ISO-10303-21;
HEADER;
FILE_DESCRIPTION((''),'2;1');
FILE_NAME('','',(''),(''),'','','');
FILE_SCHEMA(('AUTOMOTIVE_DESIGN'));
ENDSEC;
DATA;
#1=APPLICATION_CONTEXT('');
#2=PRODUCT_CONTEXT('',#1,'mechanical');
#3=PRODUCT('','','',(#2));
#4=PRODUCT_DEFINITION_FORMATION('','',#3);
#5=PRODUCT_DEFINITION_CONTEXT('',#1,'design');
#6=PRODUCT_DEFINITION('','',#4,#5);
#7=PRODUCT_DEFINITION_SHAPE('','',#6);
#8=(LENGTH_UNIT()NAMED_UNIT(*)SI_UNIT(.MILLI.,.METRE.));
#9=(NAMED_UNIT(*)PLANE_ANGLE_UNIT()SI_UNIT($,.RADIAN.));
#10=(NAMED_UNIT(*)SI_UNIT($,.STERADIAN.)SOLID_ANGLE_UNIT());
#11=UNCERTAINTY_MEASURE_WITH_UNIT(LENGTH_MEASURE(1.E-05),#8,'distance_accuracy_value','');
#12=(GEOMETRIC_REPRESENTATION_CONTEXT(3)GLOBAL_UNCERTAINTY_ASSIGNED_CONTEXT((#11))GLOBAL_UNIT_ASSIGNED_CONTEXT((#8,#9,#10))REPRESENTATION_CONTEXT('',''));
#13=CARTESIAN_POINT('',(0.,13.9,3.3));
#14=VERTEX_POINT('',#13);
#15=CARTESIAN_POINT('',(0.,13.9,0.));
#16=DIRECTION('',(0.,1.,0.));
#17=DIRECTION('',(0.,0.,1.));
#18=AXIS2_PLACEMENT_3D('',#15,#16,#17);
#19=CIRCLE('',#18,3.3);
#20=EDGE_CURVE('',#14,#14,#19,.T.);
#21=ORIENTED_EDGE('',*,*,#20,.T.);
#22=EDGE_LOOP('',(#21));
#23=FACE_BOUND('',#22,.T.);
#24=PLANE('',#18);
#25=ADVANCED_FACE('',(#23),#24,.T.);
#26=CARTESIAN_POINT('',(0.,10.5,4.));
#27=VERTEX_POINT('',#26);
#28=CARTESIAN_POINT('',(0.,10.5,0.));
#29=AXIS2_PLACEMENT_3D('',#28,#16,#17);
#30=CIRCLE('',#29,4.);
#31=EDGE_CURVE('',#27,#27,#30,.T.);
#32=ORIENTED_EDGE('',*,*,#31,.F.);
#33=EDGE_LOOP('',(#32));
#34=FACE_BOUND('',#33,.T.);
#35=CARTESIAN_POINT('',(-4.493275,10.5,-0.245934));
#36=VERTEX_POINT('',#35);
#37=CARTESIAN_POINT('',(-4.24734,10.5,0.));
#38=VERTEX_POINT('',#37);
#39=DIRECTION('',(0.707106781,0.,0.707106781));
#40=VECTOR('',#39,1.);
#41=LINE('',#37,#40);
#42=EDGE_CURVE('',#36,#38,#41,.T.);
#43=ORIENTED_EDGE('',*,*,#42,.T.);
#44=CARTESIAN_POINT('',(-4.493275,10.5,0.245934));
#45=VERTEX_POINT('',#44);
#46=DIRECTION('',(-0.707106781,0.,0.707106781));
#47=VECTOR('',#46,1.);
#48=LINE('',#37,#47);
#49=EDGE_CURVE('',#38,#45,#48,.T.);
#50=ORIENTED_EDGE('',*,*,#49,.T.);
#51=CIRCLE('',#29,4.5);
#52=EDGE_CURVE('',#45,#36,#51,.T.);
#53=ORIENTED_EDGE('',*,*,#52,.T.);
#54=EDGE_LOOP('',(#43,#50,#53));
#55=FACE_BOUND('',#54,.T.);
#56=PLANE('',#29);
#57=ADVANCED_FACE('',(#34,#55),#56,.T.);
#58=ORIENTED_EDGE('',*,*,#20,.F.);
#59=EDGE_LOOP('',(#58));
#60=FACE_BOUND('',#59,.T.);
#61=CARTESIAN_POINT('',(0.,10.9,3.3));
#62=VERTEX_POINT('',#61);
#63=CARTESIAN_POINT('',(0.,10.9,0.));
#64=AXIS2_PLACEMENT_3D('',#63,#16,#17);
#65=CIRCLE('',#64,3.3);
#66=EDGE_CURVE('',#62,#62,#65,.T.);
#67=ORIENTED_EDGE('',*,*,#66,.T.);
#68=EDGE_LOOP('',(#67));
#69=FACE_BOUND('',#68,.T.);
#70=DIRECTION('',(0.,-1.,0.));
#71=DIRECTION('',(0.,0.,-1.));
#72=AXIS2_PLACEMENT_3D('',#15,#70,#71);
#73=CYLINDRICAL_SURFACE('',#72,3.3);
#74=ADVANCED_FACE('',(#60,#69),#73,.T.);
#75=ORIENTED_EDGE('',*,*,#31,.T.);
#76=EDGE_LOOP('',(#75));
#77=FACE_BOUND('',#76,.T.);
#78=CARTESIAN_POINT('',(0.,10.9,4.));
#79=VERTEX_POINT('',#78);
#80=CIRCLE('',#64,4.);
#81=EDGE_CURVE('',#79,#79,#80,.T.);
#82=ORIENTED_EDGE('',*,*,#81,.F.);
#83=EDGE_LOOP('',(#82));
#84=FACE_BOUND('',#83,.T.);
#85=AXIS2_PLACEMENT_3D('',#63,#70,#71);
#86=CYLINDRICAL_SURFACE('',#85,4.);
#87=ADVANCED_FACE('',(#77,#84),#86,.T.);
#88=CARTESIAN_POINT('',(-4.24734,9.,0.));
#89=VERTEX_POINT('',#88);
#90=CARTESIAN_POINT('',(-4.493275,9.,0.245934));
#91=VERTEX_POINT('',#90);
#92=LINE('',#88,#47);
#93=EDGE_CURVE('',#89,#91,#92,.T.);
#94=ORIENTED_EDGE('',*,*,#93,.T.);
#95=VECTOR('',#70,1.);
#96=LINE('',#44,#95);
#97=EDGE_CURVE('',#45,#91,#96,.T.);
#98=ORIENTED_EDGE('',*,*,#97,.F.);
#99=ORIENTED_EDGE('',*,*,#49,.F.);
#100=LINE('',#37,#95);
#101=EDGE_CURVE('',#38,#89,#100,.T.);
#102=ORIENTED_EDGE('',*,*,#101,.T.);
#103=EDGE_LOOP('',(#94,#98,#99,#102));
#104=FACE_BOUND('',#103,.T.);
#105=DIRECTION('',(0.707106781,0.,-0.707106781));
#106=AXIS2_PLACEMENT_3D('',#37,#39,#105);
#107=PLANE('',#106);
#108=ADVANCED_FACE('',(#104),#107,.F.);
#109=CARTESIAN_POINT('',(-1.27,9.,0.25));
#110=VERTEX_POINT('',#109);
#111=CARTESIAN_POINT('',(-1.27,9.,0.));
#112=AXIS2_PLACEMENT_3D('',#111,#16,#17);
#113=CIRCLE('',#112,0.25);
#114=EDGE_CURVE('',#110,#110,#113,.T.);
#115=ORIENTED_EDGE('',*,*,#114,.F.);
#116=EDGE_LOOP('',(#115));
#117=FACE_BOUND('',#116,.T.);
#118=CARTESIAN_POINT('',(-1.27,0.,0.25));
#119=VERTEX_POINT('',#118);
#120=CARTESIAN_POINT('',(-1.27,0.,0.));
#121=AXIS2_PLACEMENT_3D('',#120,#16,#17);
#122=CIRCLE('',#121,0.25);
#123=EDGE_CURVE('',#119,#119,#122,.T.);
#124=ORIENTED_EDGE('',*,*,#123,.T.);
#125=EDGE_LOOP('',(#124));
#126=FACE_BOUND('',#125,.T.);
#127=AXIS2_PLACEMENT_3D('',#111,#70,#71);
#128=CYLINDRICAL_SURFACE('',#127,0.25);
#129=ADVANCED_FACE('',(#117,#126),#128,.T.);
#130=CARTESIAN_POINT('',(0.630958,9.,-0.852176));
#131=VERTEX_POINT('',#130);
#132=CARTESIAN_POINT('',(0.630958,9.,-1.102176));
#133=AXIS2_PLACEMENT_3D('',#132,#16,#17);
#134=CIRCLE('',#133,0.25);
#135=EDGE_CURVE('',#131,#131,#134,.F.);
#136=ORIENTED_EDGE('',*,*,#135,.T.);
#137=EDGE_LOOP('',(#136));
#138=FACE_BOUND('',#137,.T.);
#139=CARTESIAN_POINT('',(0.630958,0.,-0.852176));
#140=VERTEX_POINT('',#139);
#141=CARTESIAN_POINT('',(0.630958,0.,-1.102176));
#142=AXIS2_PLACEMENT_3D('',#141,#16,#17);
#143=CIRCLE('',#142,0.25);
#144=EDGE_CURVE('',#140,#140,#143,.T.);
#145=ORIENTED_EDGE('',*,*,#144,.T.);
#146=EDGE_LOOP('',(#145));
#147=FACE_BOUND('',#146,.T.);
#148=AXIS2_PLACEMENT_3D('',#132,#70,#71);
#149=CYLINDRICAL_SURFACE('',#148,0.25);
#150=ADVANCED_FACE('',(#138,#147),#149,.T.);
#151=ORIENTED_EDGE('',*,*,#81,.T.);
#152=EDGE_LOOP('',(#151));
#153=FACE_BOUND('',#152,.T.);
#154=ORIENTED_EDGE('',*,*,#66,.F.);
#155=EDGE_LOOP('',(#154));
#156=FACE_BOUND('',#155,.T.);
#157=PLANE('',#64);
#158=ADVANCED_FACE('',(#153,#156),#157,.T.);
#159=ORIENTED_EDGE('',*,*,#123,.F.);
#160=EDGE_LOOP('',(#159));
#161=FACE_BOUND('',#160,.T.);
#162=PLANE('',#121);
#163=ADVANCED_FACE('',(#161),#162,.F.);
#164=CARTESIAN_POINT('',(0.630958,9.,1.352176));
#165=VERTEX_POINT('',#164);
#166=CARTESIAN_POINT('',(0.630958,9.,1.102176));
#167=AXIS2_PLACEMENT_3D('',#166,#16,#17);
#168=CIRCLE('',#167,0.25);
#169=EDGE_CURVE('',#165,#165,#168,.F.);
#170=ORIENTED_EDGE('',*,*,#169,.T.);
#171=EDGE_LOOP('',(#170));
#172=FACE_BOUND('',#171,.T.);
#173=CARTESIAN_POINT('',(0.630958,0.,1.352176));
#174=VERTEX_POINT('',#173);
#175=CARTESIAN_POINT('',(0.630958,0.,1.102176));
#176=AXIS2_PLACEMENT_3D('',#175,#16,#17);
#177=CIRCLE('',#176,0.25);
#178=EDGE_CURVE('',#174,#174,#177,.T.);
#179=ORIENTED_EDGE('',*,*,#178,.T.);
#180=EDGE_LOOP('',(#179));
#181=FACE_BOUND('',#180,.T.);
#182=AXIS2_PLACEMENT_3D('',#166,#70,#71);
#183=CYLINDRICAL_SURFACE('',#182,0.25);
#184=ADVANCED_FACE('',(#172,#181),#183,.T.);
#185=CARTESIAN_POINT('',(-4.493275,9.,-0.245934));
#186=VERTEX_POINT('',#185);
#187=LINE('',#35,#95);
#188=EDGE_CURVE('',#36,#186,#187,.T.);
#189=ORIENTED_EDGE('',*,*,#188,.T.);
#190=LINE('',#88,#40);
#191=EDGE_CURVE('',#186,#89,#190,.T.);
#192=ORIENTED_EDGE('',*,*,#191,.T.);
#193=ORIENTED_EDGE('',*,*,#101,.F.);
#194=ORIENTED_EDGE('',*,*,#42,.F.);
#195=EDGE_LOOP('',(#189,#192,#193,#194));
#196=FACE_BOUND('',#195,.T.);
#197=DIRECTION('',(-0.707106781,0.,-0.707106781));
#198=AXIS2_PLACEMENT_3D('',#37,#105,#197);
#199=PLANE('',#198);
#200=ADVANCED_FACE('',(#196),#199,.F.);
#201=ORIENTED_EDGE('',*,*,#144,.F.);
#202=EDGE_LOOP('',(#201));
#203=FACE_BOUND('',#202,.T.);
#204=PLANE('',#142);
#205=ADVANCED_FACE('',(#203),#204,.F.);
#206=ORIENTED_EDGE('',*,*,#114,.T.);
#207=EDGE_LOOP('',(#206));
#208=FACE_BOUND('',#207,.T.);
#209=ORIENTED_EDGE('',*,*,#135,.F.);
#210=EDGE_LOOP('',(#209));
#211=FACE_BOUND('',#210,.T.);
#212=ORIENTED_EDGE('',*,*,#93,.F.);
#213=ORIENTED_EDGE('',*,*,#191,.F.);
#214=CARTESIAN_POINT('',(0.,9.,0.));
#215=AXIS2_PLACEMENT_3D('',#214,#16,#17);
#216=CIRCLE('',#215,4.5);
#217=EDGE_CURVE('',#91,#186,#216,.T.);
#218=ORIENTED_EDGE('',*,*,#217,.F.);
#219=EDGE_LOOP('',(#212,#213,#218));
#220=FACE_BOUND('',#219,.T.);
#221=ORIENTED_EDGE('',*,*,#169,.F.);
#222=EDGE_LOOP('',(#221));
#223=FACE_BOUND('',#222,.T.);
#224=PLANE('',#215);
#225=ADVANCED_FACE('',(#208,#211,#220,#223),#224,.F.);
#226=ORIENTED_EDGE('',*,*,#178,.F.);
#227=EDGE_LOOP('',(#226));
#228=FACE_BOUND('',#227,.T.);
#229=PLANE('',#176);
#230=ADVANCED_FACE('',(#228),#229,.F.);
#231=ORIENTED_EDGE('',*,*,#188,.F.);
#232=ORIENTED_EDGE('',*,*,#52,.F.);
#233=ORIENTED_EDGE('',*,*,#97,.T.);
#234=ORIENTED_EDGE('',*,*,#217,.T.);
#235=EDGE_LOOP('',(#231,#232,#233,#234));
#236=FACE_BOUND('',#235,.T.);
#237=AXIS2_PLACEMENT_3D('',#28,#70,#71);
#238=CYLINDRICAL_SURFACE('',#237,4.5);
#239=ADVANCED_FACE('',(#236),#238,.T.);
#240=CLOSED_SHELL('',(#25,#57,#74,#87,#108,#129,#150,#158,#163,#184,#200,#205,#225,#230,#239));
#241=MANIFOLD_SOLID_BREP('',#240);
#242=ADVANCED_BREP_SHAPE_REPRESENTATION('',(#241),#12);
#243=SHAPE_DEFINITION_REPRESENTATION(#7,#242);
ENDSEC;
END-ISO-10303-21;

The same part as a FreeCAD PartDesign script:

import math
import FreeCAD as App
import Part
import Sketcher

V = App.Vector

doc = App.newDocument("Part")
body = doc.addObject("PartDesign::Body", "Body")

sketch1 = doc.addObject("Sketcher::SketchObject", "Sketch")
body.addObject(sketch1)
sketch1.AttachmentSupport = (doc.XZ_Plane, [""])
sketch1.MapMode = "FlatFace"
sketch1.addGeometry(Part.Circle(V(-1.27, 0, 0), V(0, 0, 1), 0.25), False)
sketch1.addConstraint([
    Sketcher.Constraint("PointOnObject", 0, 3, -1),
    Sketcher.Constraint("Diameter", 0, 0.5),
    Sketcher.Constraint("DistanceX", 0, 3, -1, 1, 1.27),
])
pad1 = doc.addObject("PartDesign::Pad", "Pad")
body.addObject(pad1)
pad1.Profile = sketch1
pad1.Length = 9
pad1.Reversed = True
body2 = doc.addObject("PartDesign::Body", "Body001")

sketch2 = doc.addObject("Sketcher::SketchObject", "Sketch001")
body2.addObject(sketch2)
sketch2.AttachmentSupport = (doc.getObject("XZ_Plane001"), [""])
sketch2.MapMode = "FlatFace"
sketch2.addGeometry(Part.Circle(V(0.63, -1.1, 0), V(0, 0, 1), 0.25), False)
sketch2.addConstraint([
    Sketcher.Constraint("Diameter", 0, 0.5),
    Sketcher.Constraint("DistanceX", -1, 1, 0, 3, 0.630958),
    Sketcher.Constraint("DistanceY", 0, 3, -1, 1, 1.102176),
])
pad2 = doc.addObject("PartDesign::Pad", "Pad001")
body2.addObject(pad2)
pad2.Profile = sketch2
pad2.Length = 9
pad2.Reversed = True
body3 = doc.addObject("PartDesign::Body", "Body002")

sketch3 = doc.addObject("Sketcher::SketchObject", "Sketch002")
body3.addObject(sketch3)
sketch3.AttachmentSupport = (doc.getObject("XZ_Plane002"), [""])
sketch3.MapMode = "FlatFace"
sketch3.addGeometry(Part.Circle(V(0.63, 1.1, 0), V(0, 0, 1), 0.25), False)
sketch3.addConstraint([
    Sketcher.Constraint("Diameter", 0, 0.5),
    Sketcher.Constraint("DistanceX", -1, 1, 0, 3, 0.630958),
    Sketcher.Constraint("DistanceY", -1, 1, 0, 3, 1.102176),
])
pad3 = doc.addObject("PartDesign::Pad", "Pad002")
body3.addObject(pad3)
pad3.Profile = sketch3
pad3.Length = 9
pad3.Reversed = True
body.AllowCompound = True
doc.recompute()

boolean = doc.addObject("PartDesign::Boolean", "Boolean")
body.addObject(boolean)
boolean.Type = "Fuse"
boolean.addObjects([body2])
doc.recompute()

boolean2 = doc.addObject("PartDesign::Boolean", "Boolean001")
body.addObject(boolean2)
boolean2.Type = "Fuse"
boolean2.addObjects([body3])

sketch4 = doc.addObject("Sketcher::SketchObject", "Sketch003")
body.addObject(sketch4)
sketch4.AttachmentSupport = (doc.XZ_Plane, [""])
sketch4.MapMode = "FlatFace"
sketch4.AttachmentOffset = App.Placement(V(0, 0, -9), App.Rotation())
sketch4.addGeometry([
    Part.LineSegment(V(-4.49, -0.25, 0), V(-4.25, 0, 0)),
    Part.LineSegment(V(-4.25, 0, 0), V(-4.49, 0.25, 0)),
    Part.ArcOfCircle(Part.Circle(V(0, 0, 0), V(0, 0, 1), 4.5), math.radians(-177), math.radians(177)),
], False)
sketch4.addConstraint([
    Sketcher.Constraint("Coincident", 0, 2, 1, 1),
    Sketcher.Constraint("Coincident", 1, 2, 2, 2),
    Sketcher.Constraint("Coincident", 2, 1, 0, 1),
    Sketcher.Constraint("Coincident", 2, 3, -1, 1),
    Sketcher.Constraint("PointOnObject", 0, 2, -1),
    Sketcher.Constraint("Perpendicular", 0, 1),
    Sketcher.Constraint("Vertical", 1, 2, 2, 1),
    Sketcher.Constraint("Radius", 2, 4.5),
    Sketcher.Constraint("DistanceX", 0, 2, -1, 1, 4.24734),
])
pad4 = doc.addObject("PartDesign::Pad", "Pad003")
body.addObject(pad4)
pad4.Profile = sketch4
pad4.Length = 1.5
pad4.Reversed = True

sketch5 = doc.addObject("Sketcher::SketchObject", "Sketch004")
body.addObject(sketch5)
sketch5.AttachmentSupport = (doc.XZ_Plane, [""])
sketch5.MapMode = "FlatFace"
sketch5.AttachmentOffset = App.Placement(V(0, 0, -10.5), App.Rotation())
sketch5.addGeometry(Part.Circle(V(0, 0, 0), V(0, 0, 1), 4), False)
sketch5.addConstraint([
    Sketcher.Constraint("Coincident", 0, 3, -1, 1),
    Sketcher.Constraint("Diameter", 0, 8.0),
])
pad5 = doc.addObject("PartDesign::Pad", "Pad004")
body.addObject(pad5)
pad5.Profile = sketch5
pad5.Length = 0.4
pad5.Reversed = True

sketch6 = doc.addObject("Sketcher::SketchObject", "Sketch005")
body.addObject(sketch6)
sketch6.AttachmentSupport = (doc.XZ_Plane, [""])
sketch6.MapMode = "FlatFace"
sketch6.AttachmentOffset = App.Placement(V(0, 0, -10.9), App.Rotation())
sketch6.addGeometry(Part.Circle(V(0, 0, 0), V(0, 0, 1), 3.3), False)
sketch6.addConstraint([
    Sketcher.Constraint("Coincident", 0, 3, -1, 1),
    Sketcher.Constraint("Diameter", 0, 6.6),
])
pad6 = doc.addObject("PartDesign::Pad", "Pad005")
body.addObject(pad6)
pad6.Profile = sketch6
pad6.Length = 3
pad6.Reversed = True

doc.recompute()
